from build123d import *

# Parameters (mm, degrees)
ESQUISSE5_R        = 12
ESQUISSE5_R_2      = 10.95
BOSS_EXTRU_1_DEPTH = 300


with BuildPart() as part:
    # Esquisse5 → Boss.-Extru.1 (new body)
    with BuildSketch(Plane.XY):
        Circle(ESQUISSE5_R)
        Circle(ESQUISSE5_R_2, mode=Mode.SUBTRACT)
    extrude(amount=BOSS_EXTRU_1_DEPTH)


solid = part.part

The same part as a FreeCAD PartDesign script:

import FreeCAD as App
import Part
import Sketcher
Q = App.Units.Quantity

doc = App.newDocument("Part")
body = doc.addObject("PartDesign::Body", "Body")

sketch1 = doc.addObject("Sketcher::SketchObject", "Sketch")
body.addObject(sketch1)
sketch1.AttachmentSupport = (doc.XY_Plane, [""])
sketch1.MapMode = "FlatFace"
sketch1.addGeometry([
    Part.Circle(App.Vector(0, 0, 0), App.Vector(0, 0, 1), 12),
    Part.Circle(App.Vector(0, 0, 0), App.Vector(0, 0, 1), 11),
], False)
sketch1.addConstraint([
    Sketcher.Constraint("Coincident", 0, 3, -1, 1),
    Sketcher.Constraint("Coincident", 1, 3, -1, 1),
    Sketcher.Constraint("Diameter", 0, Q("24 mm")),
    Sketcher.Constraint("Diameter", 1, Q("21.9 mm")),
])
pad1 = doc.addObject("PartDesign::Pad", "Pad")
body.addObject(pad1)
pad1.Profile = sketch1
pad1.Length = 300

doc.recompute()
